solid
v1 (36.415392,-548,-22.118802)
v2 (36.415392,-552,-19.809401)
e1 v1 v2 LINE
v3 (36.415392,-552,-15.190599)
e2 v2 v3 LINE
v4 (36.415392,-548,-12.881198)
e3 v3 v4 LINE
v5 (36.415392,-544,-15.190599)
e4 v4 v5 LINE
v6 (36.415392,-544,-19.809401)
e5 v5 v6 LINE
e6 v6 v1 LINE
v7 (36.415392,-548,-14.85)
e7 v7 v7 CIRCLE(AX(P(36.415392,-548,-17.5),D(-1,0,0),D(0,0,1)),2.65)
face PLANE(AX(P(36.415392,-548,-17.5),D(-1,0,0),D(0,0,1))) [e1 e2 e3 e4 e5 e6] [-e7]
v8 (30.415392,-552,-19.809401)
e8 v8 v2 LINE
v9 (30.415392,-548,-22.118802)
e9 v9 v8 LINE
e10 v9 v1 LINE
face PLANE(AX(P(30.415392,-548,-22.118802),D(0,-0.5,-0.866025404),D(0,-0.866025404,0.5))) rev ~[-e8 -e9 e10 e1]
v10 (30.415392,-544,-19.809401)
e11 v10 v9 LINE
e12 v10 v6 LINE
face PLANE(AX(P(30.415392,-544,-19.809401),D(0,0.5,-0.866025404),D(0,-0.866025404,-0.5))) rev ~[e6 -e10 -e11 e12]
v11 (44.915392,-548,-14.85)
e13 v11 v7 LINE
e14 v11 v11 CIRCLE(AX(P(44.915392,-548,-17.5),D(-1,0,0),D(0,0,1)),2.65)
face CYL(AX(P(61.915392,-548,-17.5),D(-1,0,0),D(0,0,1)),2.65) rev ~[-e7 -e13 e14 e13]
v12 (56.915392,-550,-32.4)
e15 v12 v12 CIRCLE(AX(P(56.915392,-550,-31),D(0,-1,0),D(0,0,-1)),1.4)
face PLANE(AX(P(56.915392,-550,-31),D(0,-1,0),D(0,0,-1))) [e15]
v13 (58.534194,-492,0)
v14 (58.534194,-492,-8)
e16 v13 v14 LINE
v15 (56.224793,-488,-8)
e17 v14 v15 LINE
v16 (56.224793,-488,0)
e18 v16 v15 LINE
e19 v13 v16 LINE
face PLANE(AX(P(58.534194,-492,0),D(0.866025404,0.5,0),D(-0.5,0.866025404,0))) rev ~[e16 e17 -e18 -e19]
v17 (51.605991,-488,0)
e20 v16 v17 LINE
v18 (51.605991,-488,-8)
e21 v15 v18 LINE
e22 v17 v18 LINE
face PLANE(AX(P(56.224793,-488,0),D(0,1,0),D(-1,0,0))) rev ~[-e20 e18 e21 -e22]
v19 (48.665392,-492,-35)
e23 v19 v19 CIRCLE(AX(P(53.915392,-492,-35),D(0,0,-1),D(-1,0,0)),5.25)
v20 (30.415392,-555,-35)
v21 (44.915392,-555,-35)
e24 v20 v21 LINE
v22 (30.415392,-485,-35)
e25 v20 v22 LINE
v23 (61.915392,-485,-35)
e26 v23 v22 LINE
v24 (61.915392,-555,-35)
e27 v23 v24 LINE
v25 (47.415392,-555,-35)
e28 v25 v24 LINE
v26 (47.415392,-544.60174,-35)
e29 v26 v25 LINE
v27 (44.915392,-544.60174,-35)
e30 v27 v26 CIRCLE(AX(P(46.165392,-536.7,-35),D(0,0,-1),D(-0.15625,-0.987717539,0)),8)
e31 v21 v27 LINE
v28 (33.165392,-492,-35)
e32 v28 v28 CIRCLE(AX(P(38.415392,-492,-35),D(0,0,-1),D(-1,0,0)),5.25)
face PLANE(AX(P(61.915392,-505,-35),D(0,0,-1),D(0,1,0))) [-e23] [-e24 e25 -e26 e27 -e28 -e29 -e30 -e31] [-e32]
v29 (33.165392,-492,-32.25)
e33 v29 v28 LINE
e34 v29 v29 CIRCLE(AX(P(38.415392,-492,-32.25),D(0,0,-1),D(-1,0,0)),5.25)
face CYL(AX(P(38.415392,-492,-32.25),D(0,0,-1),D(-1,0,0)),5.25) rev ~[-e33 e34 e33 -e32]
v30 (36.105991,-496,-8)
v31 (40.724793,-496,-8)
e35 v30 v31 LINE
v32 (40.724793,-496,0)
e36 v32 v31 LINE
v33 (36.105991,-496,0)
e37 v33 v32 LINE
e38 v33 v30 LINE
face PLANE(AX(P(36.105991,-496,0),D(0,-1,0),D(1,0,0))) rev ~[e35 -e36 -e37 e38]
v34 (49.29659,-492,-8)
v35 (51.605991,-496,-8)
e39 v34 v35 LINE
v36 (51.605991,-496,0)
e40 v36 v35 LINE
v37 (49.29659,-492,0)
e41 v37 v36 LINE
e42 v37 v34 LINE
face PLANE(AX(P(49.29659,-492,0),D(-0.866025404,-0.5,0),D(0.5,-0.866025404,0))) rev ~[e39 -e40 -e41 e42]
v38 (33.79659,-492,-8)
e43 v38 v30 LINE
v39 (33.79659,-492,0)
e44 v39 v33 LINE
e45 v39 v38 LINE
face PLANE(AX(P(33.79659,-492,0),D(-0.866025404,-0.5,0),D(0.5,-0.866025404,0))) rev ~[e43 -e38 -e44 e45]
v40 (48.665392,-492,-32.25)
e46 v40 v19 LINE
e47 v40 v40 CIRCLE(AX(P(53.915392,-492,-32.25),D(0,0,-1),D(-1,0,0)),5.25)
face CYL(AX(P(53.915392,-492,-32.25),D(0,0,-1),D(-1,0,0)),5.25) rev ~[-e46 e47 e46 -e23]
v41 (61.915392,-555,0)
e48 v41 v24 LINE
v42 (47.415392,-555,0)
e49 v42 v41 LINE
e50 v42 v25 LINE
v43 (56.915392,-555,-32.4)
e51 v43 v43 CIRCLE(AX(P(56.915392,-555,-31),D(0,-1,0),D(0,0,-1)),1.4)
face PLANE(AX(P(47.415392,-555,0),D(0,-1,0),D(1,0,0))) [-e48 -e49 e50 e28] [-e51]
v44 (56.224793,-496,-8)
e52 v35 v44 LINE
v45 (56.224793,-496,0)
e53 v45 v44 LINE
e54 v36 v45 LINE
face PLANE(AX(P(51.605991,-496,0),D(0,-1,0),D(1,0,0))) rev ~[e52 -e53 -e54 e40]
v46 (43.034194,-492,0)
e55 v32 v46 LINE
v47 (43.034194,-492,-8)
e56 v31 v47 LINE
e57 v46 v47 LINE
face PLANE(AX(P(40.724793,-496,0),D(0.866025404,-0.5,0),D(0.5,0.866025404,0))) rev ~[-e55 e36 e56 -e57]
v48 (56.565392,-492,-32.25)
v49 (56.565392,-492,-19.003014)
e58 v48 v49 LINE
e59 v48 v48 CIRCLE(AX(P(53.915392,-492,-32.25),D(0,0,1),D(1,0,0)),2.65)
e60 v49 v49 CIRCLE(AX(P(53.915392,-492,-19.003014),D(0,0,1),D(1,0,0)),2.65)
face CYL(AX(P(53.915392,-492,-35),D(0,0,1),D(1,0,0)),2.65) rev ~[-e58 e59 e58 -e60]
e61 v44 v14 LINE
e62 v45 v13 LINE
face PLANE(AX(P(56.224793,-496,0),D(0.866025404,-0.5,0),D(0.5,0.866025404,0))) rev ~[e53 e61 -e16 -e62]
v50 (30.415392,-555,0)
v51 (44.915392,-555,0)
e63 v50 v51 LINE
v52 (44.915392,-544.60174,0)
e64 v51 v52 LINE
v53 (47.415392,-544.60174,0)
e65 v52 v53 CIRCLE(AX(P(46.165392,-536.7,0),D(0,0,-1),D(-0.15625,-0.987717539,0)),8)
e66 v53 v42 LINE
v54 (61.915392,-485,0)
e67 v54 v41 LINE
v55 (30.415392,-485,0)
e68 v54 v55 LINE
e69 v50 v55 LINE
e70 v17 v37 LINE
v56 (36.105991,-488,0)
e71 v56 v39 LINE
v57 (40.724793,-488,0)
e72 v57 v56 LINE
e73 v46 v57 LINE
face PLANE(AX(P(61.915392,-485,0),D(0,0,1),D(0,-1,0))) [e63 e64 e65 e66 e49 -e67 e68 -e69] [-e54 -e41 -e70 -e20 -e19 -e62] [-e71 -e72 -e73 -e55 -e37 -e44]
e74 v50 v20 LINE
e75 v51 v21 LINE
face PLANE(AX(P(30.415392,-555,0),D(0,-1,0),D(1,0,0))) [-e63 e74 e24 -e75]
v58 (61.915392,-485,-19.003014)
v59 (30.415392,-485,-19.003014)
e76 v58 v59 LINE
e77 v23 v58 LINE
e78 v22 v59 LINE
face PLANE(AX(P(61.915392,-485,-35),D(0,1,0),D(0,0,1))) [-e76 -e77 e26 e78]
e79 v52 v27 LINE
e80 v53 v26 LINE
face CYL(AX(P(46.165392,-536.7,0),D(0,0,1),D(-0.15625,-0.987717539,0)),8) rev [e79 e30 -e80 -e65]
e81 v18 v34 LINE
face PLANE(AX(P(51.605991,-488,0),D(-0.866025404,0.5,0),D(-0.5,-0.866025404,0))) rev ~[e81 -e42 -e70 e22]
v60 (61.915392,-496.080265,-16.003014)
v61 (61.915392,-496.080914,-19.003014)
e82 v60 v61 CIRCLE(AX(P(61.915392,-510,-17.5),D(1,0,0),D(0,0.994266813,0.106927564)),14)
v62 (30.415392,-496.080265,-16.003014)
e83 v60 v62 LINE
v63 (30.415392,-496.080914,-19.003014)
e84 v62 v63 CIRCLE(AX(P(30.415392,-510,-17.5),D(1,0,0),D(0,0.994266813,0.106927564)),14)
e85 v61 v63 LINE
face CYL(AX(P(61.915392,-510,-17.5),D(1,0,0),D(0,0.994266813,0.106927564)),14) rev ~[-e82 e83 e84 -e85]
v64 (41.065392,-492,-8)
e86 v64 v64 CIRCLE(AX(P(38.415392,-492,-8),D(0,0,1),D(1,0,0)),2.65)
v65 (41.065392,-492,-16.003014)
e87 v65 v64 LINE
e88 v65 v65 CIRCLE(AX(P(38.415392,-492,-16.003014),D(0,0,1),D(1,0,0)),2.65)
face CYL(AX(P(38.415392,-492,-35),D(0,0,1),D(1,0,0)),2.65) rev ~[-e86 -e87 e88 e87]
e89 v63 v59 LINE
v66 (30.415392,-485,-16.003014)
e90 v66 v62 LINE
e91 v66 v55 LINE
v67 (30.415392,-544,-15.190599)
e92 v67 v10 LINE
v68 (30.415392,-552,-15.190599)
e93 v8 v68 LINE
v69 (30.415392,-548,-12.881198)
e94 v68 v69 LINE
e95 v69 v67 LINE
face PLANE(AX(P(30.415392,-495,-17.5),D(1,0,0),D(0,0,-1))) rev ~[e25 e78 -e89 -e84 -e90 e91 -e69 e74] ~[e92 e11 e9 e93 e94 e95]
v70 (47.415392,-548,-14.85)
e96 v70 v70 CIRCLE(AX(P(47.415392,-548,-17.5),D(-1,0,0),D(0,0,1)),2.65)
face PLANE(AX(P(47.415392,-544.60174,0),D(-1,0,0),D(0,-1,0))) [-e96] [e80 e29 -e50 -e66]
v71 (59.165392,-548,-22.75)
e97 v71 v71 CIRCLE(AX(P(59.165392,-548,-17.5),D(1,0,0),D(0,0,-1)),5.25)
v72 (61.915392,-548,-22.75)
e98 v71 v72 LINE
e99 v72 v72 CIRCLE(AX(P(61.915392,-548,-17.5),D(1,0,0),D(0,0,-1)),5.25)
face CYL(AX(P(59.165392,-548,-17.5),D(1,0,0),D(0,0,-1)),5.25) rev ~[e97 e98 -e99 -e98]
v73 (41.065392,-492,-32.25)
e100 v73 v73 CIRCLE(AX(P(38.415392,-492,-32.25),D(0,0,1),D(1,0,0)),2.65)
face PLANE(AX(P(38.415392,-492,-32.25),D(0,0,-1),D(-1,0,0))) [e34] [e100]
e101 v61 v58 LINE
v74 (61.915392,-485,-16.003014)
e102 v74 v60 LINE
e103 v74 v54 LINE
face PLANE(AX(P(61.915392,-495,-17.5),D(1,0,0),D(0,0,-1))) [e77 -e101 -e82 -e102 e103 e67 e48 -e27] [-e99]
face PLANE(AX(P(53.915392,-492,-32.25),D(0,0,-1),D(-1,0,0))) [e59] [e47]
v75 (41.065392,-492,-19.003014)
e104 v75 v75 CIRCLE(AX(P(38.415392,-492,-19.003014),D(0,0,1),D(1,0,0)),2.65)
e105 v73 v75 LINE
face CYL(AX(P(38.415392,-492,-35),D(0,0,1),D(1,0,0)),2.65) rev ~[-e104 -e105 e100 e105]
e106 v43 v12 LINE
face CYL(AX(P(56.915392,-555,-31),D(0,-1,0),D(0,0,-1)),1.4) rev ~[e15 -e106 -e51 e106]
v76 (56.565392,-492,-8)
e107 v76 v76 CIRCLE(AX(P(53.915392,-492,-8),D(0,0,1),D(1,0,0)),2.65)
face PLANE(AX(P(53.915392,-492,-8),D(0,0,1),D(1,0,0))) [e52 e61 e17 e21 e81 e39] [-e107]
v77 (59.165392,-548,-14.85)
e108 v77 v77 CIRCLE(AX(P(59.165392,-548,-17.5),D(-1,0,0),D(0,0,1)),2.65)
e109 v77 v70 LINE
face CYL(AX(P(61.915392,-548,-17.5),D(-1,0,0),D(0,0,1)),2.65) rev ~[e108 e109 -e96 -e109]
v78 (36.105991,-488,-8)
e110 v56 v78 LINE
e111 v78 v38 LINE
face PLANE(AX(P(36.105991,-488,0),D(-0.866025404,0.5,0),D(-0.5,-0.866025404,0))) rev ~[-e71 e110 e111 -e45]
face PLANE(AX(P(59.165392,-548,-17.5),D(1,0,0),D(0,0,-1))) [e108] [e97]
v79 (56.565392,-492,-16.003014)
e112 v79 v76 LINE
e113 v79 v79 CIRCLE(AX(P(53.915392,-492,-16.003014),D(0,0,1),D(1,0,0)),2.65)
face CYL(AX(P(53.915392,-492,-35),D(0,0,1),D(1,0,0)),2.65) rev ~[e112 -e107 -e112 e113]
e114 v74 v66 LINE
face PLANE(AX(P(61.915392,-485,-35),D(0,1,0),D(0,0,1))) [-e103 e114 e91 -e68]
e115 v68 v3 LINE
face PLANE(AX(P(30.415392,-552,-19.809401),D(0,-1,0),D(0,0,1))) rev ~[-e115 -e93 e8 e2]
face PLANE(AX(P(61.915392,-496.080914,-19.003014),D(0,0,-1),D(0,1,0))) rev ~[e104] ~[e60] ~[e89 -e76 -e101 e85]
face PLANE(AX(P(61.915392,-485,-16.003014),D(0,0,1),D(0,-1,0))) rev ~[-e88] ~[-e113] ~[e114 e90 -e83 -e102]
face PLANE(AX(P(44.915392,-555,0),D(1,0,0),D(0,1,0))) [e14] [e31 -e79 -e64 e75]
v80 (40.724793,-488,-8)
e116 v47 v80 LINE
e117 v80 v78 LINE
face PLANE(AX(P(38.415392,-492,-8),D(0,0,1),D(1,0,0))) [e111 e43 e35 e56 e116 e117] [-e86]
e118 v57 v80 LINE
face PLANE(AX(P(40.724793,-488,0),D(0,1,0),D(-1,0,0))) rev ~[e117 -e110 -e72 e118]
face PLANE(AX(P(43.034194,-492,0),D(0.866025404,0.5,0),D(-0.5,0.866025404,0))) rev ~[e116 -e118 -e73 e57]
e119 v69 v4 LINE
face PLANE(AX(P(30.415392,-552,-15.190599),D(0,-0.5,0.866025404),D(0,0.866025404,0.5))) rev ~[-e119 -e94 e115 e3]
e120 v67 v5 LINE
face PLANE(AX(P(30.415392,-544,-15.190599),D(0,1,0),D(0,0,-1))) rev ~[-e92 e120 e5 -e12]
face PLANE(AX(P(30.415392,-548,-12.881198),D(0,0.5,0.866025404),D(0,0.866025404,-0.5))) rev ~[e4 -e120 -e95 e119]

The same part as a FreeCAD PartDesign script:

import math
import FreeCAD as App
import Part
import Sketcher
from FreeCAD import Vector
Q = App.Units.Quantity

doc = App.newDocument("Part")
body = doc.addObject("PartDesign::Body", "Body")

sketch1 = body.newObject("Sketcher::SketchObject", "Sketch")
sketch1.AttachmentSupport = (doc.getObject("XY_Plane"), [""])
sketch1.MapMode = "FlatFace"
sketch1.addGeometry([
    Part.LineSegment(Vector(47.4, -544.6, 0), Vector(47.4, -555, 0)),
    Part.LineSegment(Vector(47.4, -555, 0), Vector(61.9, -555, 0)),
    Part.LineSegment(Vector(61.9, -555, 0), Vector(61.9, -505, 0)),
    Part.LineSegment(Vector(61.9, -505, 0), Vector(30.4, -505, 0)),
    Part.LineSegment(Vector(30.4, -505, 0), Vector(30.4, -555, 0)),
    Part.LineSegment(Vector(30.4, -555, 0), Vector(44.9, -555, 0)),
    Part.LineSegment(Vector(44.9, -555, 0), Vector(44.9, -544.6, 0)),
    Part.ArcOfCircle(Part.Circle(Vector(46.2, -536.7, 0), Vector(0, 0, 1), 8), math.radians(-81), math.radians(261)),
], False)
sketch1.addConstraint([
    Sketcher.Constraint("Coincident", 0, 2, 1, 1),
    Sketcher.Constraint("Coincident", 1, 2, 2, 1),
    Sketcher.Constraint("Coincident", 2, 2, 3, 1),
    Sketcher.Constraint("Coincident", 3, 2, 4, 1),
    Sketcher.Constraint("Coincident", 4, 2, 5, 1),
    Sketcher.Constraint("Coincident", 5, 2, 6, 1),
    Sketcher.Constraint("Coincident", 6, 2, 7, 2),
    Sketcher.Constraint("Coincident", 7, 1, 0, 1),
    Sketcher.Constraint("Vertical", 0),
    Sketcher.Constraint("Horizontal", 1),
    Sketcher.Constraint("Vertical", 2),
    Sketcher.Constraint("Horizontal", 3),
    Sketcher.Constraint("Vertical", 4),
    Sketcher.Constraint("Horizontal", 5),
    Sketcher.Constraint("Vertical", 6),
    Sketcher.Constraint("Horizontal", 1, 2, 4, 2),
    Sketcher.Constraint("Horizontal", 6, 2, 7, 1),
    Sketcher.Constraint("Equal", 1, 5),
    Sketcher.Constraint("Radius", 7, 8.0),
    Sketcher.Constraint("DistanceY", 2, 1, 2, 2, 50.0),
    Sketcher.Constraint("DistanceX", 1, 1, 1, 2, 14.5),
    Sketcher.Constraint("DistanceX", 3, 2, 3, 1, 31.5),
    Sketcher.Constraint("DistanceY", 0, 2, -1, 1, 555.0),
    Sketcher.Constraint("DistanceY", 7, 3, -1, 1, 536.7),
    Sketcher.Constraint("DistanceX", -1, 1, 7, 3, 46.165392),
])
pad1 = body.newObject("PartDesign::Pad", "Pad")
pad1.Profile = sketch1
pad1.Length = 35
pad1.Reversed = True

sketch2 = body.newObject("Sketcher::SketchObject", "Sketch001")
sketch2.AttachmentSupport = (doc.getObject("YZ_Plane"), [""])
sketch2.MapMode = "FlatFace"
sketch2.AttachmentOffset = App.Placement(Vector(0, 0, 61.915392), App.Rotation())
sketch2.addGeometry([
    Part.LineSegment(Vector(-505, -35, 0), Vector(-485, -35, 0)),
    Part.LineSegment(Vector(-485, -35, 0), Vector(-485, 0, 0)),
    Part.LineSegment(Vector(-485, 0, 0), Vector(-505, 0, 0)),
    Part.LineSegment(Vector(-505, 0, 0), Vector(-505, -35, 0)),
], False)
sketch2.addConstraint([
    Sketcher.Constraint("Coincident", 0, 2, 1, 1),
    Sketcher.Constraint("Coincident", 1, 2, 2, 1),
    Sketcher.Constraint("Coincident", 2, 2, 3, 1),
    Sketcher.Constraint("Coincident", 3, 2, 0, 1),
    Sketcher.Constraint("Horizontal", 0),
    Sketcher.Constraint("Vertical", 1),
    Sketcher.Constraint("Horizontal", 2),
    Sketcher.Constraint("Vertical", 3),
    Sketcher.Constraint("PointOnObject", 1, 2, -1),
    Sketcher.Constraint("DistanceX", 0, 1, 0, 2, 20.0),
    Sketcher.Constraint("DistanceY", 1, 1, 1, 2, 35.0),
    Sketcher.Constraint("DistanceX", 0, 2, -1, 1, 485.0),
])
pad2 = body.newObject("PartDesign::Pad", "Pad001")
pad2.Profile = sketch2
pad2.Length = 31.5
pad2.Reversed = True

sketch3 = body.newObject("Sketcher::SketchObject", "Sketch002")
sketch3.AttachmentSupport = (doc.getObject("XY_Plane"), [""])
sketch3.MapMode = "FlatFace"
sketch3.AttachmentOffset = App.Placement(Vector(0, 0, -35), App.Rotation())
sketch3.addGeometry([
    Part.Circle(Vector(53.9, -492, 0), Vector(0, 0, 1), 2.6),
    Part.Circle(Vector(38.4, -492, 0), Vector(0, 0, 1), 2.6),
], False)
sketch3.addConstraint([
    Sketcher.Constraint("Equal", 0, 1),
    Sketcher.Constraint("Horizontal", 0, 3, 1, 3),
    Sketcher.Constraint("Diameter", 0, 5.3),
    Sketcher.Constraint("DistanceY", 0, 3, -1, 1, 492.0),
    Sketcher.Constraint("DistanceX", 1, 3, 0, 3, 15.5),
    Sketcher.Constraint("DistanceX", -1, 1, 0, 3, 53.915392),
])
doc.recompute()
hole = body.newObject("PartDesign::Hole", "Hole")
hole.Profile = sketch3
hole.ThreadType = "None"
hole.Diameter = 5.3
hole.DepthType = "Dimension"
hole.Depth = 44
hole.DrillPoint = "Angled"
hole.DrillPointAngle = 118
hole.HoleCutType = "Counterbore"
hole.HoleCutDiameter = 10.5
hole.HoleCutDepth = 2.75
hole.Reversed = True

sketch4 = body.newObject("Sketcher::SketchObject", "Sketch003")
sketch4.AttachmentSupport = (doc.getObject("XY_Plane"), [""])
sketch4.MapMode = "FlatFace"
sketch4.addGeometry([
    Part.LineSegment(Vector(56.2, -488, 0), Vector(51.6, -488, 0)),
    Part.LineSegment(Vector(51.6, -488, 0), Vector(49.3, -492, 0)),
    Part.LineSegment(Vector(49.3, -492, 0), Vector(51.6, -496, 0)),
    Part.LineSegment(Vector(51.6, -496, 0), Vector(56.2, -496, 0)),
    Part.LineSegment(Vector(56.2, -496, 0), Vector(58.5, -492, 0)),
    Part.LineSegment(Vector(58.5, -492, 0), Vector(56.2, -488, 0)),
    Part.LineSegment(Vector(40.7, -488, 0), Vector(36.1, -488, 0)),
    Part.LineSegment(Vector(36.1, -488, 0), Vector(33.8, -492, 0)),
    Part.LineSegment(Vector(33.8, -492, 0), Vector(36.1, -496, 0)),
    Part.LineSegment(Vector(36.1, -496, 0), Vector(40.7, -496, 0)),
    Part.LineSegment(Vector(40.7, -496, 0), Vector(43, -492, 0)),
    Part.LineSegment(Vector(43, -492, 0), Vector(40.7, -488, 0)),
], False)
sketch4.addConstraint([
    Sketcher.Constraint("Coincident", 0, 2, 1, 1),
    Sketcher.Constraint("Coincident", 1, 2, 2, 1),
    Sketcher.Constraint("Coincident", 2, 2, 3, 1),
    Sketcher.Constraint("Coincident", 3, 2, 4, 1),
    Sketcher.Constraint("Coincident", 4, 2, 5, 1),
    Sketcher.Constraint("Coincident", 5, 2, 0, 1),
    Sketcher.Constraint("Coincident", 6, 2, 7, 1),
    Sketcher.Constraint("Coincident", 7, 2, 8, 1),
    Sketcher.Constraint("Coincident", 8, 2, 9, 1),
    Sketcher.Constraint("Coincident", 9, 2, 10, 1),
    Sketcher.Constraint("Coincident", 10, 2, 11, 1),
    Sketcher.Constraint("Coincident", 11, 2, 6, 1),
    Sketcher.Constraint("Horizontal", 0),
    Sketcher.Constraint("Horizontal", 3),
    Sketcher.Constraint("Horizontal", 6),
    Sketcher.Constraint("Horizontal", 9),
    Sketcher.Constraint("Parallel", 1, 4),
    Sketcher.Constraint("Parallel", 2, 5),
    Sketcher.Constraint("Parallel", 4, 7),
    Sketcher.Constraint("Parallel", 5, 8),
    Sketcher.Constraint("Parallel", 7, 10),
    Sketcher.Constraint("Parallel", 8, 11),
    Sketcher.Constraint("Horizontal", 1, 2, 4, 2),
    Sketcher.Constraint("Horizontal", 5, 2, 6, 2),
    Sketcher.Constraint("Horizontal", 4, 2, 7, 2),
    Sketcher.Constraint("Horizontal", 3, 2, 8, 2),
    Sketcher.Constraint("Horizontal", 7, 2, 10, 2),
    Sketcher.Constraint("Vertical", 0, 2, 2, 2),
    Sketcher.Constraint("Vertical", 3, 2, 5, 2),
    Sketcher.Constraint("Equal", 3, 6),
    Sketcher.Constraint("Angle", 1, Q("-120 deg")),
    Sketcher.Constraint("DistanceY", 0, 2, -1, 1, 488.0),
    Sketcher.Constraint("DistanceY", 1, 2, -1, 1, 492.0),
    Sketcher.Constraint("DistanceX", 6, 2, 0, 2, 15.5),
    Sketcher.Constraint("DistanceX", 0, 2, 0, 1, 4.618802),
    Sketcher.Constraint("DistanceX", -1, 1, 0, 2, 51.605991),
])
pocket1 = body.newObject("PartDesign::Pocket", "Pocket")
pocket1.Profile = sketch4
pocket1.Length = 8

sketch5 = body.newObject("Sketcher::SketchObject", "Sketch004")
sketch5.AttachmentSupport = (doc.getObject("YZ_Plane"), [""])
sketch5.MapMode = "FlatFace"
sketch5.AttachmentOffset = App.Placement(Vector(0, 0, 61.915392), App.Rotation())
sketch5.addGeometry([
    Part.LineSegment(Vector(-485, -16, 0), Vector(-496.1, -16, 0)),
    Part.ArcOfCircle(Part.Circle(Vector(-510, -17.5, 0), Vector(0, 0, 1), 14), math.radians(6), math.radians(354)),
    Part.LineSegment(Vector(-496.1, -19, 0), Vector(-485, -19, 0)),
    Part.LineSegment(Vector(-485, -19, 0), Vector(-485, -16, 0)),
], False)
sketch5.addConstraint([
    Sketcher.Constraint("Coincident", 0, 2, 1, 1),
    Sketcher.Constraint("Coincident", 1, 2, 2, 1),
    Sketcher.Constraint("Coincident", 2, 2, 3, 1),
    Sketcher.Constraint("Coincident", 3, 2, 0, 1),
    Sketcher.Constraint("Horizontal", 0),
    Sketcher.Constraint("Horizontal", 2),
    Sketcher.Constraint("Vertical", 3),
    Sketcher.Constraint("Radius", 1, 14.0),
    Sketcher.Constraint("DistanceY", 3, 1, 3, 2, 3.0),
    Sketcher.Constraint("DistanceX", 1, 3, -1, 1, 510.0),
    Sketcher.Constraint("DistanceX", 2, 2, -1, 1, 485.0),
    Sketcher.Constraint("DistanceY", 1, 3, -1, 1, 17.5),
    Sketcher.Constraint("DistanceX", 0, 2, 0, 1, 11.080265),
])
pocket2 = body.newObject("PartDesign::Pocket", "Pocket001")
pocket2.Profile = sketch5
pocket2.Length = 45

sketch6 = body.newObject("Sketcher::SketchObject", "Sketch005")
sketch6.AttachmentSupport = (doc.getObject("YZ_Plane"), [""])
sketch6.MapMode = "FlatFace"
sketch6.AttachmentOffset = App.Placement(Vector(0, 0, 61.915392), App.Rotation())
sketch6.addGeometry(Part.Circle(Vector(-548, -17.5, 0), Vector(0, 0, 1), 2.6), False)
sketch6.addConstraint([
    Sketcher.Constraint("Diameter", 0, 5.3),
    Sketcher.Constraint("DistanceX", 0, 3, -1, 1, 548.0),
    Sketcher.Constraint("DistanceY", 0, 3, -1, 1, 17.5),
])
doc.recompute()
hole2 = body.newObject("PartDesign::Hole", "Hole001")
hole2.Profile = sketch6
hole2.ThreadType = "None"
hole2.Diameter = 5.3
hole2.DepthType = "Dimension"
hole2.Depth = 44
hole2.DrillPoint = "Angled"
hole2.DrillPointAngle = 118
hole2.HoleCutType = "Counterbore"
hole2.HoleCutDiameter = 10.5
hole2.HoleCutDepth = 2.75

sketch7 = body.newObject("Sketcher::SketchObject", "Sketch006")
sketch7.AttachmentSupport = (doc.getObject("YZ_Plane"), [""])
sketch7.MapMode = "FlatFace"
sketch7.AttachmentOffset = App.Placement(Vector(0, 0, 30.415392), App.Rotation())
sketch7.addGeometry([
    Part.LineSegment(Vector(-544, -15.2, 0), Vector(-544, -19.8, 0)),
    Part.LineSegment(Vector(-544, -19.8, 0), Vector(-548, -22.1, 0)),
    Part.LineSegment(Vector(-548, -22.1, 0), Vector(-552, -19.8, 0)),
    Part.LineSegment(Vector(-552, -19.8, 0), Vector(-552, -15.2, 0)),
    Part.LineSegment(Vector(-552, -15.2, 0), Vector(-548, -12.9, 0)),
    Part.LineSegment(Vector(-548, -12.9, 0), Vector(-544, -15.2, 0)),
], False)
sketch7.addConstraint([
    Sketcher.Constraint("Coincident", 0, 2, 1, 1),
    Sketcher.Constraint("Coincident", 1, 2, 2, 1),
    Sketcher.Constraint("Coincident", 2, 2, 3, 1),
    Sketcher.Constraint("Coincident", 3, 2, 4, 1),
    Sketcher.Constraint("Coincident", 4, 2, 5, 1),
    Sketcher.Constraint("Coincident", 5, 2, 0, 1),
    Sketcher.Constraint("Vertical", 0),
    Sketcher.Constraint("Vertical", 3),
    Sketcher.Constraint("Parallel", 1, 4),
    Sketcher.Constraint("Parallel", 2, 5),
    Sketcher.Constraint("Horizontal", 0, 2, 2, 2),
    Sketcher.Constraint("Horizontal", 3, 2, 5, 2),
    Sketcher.Constraint("Vertical", 1, 2, 4, 2),
    Sketcher.Constraint("Angle", 1, Q("-150 deg")),
    Sketcher.Constraint("DistanceX", 0, 2, -1, 1, 544.0),
    Sketcher.Constraint("DistanceX", 1, 2, -1, 1, 548.0),
    Sketcher.Constraint("DistanceY", 0, 2, -1, 1, 19.809401),
    Sketcher.Constraint("DistanceY", 3, 2, -1, 1, 15.190599),
])
pocket3 = body.newObject("PartDesign::Pocket", "Pocket002")
pocket3.Profile = sketch7
pocket3.Length = 6
pocket3.Reversed = True

sketch8 = body.newObject("Sketcher::SketchObject", "Sketch007")
sketch8.AttachmentSupport = (doc.getObject("XZ_Plane"), [""])
sketch8.MapMode = "FlatFace"
sketch8.AttachmentOffset = App.Placement(Vector(0, 0, 555), App.Rotation())
sketch8.addGeometry(Part.Circle(Vector(56.9, -31, 0), Vector(0, 0, 1), 1.4), False)
sketch8.addConstraint([
    Sketcher.Constraint("Diameter", 0, 2.8),
    Sketcher.Constraint("DistanceY", 0, 3, -1, 1, 31.0),
    Sketcher.Constraint("DistanceX", -1, 1, 0, 3, 56.915392),
])
pocket4 = body.newObject("PartDesign::Pocket", "Pocket003")
pocket4.Profile = sketch8
pocket4.Length = 5

doc.recompute()
